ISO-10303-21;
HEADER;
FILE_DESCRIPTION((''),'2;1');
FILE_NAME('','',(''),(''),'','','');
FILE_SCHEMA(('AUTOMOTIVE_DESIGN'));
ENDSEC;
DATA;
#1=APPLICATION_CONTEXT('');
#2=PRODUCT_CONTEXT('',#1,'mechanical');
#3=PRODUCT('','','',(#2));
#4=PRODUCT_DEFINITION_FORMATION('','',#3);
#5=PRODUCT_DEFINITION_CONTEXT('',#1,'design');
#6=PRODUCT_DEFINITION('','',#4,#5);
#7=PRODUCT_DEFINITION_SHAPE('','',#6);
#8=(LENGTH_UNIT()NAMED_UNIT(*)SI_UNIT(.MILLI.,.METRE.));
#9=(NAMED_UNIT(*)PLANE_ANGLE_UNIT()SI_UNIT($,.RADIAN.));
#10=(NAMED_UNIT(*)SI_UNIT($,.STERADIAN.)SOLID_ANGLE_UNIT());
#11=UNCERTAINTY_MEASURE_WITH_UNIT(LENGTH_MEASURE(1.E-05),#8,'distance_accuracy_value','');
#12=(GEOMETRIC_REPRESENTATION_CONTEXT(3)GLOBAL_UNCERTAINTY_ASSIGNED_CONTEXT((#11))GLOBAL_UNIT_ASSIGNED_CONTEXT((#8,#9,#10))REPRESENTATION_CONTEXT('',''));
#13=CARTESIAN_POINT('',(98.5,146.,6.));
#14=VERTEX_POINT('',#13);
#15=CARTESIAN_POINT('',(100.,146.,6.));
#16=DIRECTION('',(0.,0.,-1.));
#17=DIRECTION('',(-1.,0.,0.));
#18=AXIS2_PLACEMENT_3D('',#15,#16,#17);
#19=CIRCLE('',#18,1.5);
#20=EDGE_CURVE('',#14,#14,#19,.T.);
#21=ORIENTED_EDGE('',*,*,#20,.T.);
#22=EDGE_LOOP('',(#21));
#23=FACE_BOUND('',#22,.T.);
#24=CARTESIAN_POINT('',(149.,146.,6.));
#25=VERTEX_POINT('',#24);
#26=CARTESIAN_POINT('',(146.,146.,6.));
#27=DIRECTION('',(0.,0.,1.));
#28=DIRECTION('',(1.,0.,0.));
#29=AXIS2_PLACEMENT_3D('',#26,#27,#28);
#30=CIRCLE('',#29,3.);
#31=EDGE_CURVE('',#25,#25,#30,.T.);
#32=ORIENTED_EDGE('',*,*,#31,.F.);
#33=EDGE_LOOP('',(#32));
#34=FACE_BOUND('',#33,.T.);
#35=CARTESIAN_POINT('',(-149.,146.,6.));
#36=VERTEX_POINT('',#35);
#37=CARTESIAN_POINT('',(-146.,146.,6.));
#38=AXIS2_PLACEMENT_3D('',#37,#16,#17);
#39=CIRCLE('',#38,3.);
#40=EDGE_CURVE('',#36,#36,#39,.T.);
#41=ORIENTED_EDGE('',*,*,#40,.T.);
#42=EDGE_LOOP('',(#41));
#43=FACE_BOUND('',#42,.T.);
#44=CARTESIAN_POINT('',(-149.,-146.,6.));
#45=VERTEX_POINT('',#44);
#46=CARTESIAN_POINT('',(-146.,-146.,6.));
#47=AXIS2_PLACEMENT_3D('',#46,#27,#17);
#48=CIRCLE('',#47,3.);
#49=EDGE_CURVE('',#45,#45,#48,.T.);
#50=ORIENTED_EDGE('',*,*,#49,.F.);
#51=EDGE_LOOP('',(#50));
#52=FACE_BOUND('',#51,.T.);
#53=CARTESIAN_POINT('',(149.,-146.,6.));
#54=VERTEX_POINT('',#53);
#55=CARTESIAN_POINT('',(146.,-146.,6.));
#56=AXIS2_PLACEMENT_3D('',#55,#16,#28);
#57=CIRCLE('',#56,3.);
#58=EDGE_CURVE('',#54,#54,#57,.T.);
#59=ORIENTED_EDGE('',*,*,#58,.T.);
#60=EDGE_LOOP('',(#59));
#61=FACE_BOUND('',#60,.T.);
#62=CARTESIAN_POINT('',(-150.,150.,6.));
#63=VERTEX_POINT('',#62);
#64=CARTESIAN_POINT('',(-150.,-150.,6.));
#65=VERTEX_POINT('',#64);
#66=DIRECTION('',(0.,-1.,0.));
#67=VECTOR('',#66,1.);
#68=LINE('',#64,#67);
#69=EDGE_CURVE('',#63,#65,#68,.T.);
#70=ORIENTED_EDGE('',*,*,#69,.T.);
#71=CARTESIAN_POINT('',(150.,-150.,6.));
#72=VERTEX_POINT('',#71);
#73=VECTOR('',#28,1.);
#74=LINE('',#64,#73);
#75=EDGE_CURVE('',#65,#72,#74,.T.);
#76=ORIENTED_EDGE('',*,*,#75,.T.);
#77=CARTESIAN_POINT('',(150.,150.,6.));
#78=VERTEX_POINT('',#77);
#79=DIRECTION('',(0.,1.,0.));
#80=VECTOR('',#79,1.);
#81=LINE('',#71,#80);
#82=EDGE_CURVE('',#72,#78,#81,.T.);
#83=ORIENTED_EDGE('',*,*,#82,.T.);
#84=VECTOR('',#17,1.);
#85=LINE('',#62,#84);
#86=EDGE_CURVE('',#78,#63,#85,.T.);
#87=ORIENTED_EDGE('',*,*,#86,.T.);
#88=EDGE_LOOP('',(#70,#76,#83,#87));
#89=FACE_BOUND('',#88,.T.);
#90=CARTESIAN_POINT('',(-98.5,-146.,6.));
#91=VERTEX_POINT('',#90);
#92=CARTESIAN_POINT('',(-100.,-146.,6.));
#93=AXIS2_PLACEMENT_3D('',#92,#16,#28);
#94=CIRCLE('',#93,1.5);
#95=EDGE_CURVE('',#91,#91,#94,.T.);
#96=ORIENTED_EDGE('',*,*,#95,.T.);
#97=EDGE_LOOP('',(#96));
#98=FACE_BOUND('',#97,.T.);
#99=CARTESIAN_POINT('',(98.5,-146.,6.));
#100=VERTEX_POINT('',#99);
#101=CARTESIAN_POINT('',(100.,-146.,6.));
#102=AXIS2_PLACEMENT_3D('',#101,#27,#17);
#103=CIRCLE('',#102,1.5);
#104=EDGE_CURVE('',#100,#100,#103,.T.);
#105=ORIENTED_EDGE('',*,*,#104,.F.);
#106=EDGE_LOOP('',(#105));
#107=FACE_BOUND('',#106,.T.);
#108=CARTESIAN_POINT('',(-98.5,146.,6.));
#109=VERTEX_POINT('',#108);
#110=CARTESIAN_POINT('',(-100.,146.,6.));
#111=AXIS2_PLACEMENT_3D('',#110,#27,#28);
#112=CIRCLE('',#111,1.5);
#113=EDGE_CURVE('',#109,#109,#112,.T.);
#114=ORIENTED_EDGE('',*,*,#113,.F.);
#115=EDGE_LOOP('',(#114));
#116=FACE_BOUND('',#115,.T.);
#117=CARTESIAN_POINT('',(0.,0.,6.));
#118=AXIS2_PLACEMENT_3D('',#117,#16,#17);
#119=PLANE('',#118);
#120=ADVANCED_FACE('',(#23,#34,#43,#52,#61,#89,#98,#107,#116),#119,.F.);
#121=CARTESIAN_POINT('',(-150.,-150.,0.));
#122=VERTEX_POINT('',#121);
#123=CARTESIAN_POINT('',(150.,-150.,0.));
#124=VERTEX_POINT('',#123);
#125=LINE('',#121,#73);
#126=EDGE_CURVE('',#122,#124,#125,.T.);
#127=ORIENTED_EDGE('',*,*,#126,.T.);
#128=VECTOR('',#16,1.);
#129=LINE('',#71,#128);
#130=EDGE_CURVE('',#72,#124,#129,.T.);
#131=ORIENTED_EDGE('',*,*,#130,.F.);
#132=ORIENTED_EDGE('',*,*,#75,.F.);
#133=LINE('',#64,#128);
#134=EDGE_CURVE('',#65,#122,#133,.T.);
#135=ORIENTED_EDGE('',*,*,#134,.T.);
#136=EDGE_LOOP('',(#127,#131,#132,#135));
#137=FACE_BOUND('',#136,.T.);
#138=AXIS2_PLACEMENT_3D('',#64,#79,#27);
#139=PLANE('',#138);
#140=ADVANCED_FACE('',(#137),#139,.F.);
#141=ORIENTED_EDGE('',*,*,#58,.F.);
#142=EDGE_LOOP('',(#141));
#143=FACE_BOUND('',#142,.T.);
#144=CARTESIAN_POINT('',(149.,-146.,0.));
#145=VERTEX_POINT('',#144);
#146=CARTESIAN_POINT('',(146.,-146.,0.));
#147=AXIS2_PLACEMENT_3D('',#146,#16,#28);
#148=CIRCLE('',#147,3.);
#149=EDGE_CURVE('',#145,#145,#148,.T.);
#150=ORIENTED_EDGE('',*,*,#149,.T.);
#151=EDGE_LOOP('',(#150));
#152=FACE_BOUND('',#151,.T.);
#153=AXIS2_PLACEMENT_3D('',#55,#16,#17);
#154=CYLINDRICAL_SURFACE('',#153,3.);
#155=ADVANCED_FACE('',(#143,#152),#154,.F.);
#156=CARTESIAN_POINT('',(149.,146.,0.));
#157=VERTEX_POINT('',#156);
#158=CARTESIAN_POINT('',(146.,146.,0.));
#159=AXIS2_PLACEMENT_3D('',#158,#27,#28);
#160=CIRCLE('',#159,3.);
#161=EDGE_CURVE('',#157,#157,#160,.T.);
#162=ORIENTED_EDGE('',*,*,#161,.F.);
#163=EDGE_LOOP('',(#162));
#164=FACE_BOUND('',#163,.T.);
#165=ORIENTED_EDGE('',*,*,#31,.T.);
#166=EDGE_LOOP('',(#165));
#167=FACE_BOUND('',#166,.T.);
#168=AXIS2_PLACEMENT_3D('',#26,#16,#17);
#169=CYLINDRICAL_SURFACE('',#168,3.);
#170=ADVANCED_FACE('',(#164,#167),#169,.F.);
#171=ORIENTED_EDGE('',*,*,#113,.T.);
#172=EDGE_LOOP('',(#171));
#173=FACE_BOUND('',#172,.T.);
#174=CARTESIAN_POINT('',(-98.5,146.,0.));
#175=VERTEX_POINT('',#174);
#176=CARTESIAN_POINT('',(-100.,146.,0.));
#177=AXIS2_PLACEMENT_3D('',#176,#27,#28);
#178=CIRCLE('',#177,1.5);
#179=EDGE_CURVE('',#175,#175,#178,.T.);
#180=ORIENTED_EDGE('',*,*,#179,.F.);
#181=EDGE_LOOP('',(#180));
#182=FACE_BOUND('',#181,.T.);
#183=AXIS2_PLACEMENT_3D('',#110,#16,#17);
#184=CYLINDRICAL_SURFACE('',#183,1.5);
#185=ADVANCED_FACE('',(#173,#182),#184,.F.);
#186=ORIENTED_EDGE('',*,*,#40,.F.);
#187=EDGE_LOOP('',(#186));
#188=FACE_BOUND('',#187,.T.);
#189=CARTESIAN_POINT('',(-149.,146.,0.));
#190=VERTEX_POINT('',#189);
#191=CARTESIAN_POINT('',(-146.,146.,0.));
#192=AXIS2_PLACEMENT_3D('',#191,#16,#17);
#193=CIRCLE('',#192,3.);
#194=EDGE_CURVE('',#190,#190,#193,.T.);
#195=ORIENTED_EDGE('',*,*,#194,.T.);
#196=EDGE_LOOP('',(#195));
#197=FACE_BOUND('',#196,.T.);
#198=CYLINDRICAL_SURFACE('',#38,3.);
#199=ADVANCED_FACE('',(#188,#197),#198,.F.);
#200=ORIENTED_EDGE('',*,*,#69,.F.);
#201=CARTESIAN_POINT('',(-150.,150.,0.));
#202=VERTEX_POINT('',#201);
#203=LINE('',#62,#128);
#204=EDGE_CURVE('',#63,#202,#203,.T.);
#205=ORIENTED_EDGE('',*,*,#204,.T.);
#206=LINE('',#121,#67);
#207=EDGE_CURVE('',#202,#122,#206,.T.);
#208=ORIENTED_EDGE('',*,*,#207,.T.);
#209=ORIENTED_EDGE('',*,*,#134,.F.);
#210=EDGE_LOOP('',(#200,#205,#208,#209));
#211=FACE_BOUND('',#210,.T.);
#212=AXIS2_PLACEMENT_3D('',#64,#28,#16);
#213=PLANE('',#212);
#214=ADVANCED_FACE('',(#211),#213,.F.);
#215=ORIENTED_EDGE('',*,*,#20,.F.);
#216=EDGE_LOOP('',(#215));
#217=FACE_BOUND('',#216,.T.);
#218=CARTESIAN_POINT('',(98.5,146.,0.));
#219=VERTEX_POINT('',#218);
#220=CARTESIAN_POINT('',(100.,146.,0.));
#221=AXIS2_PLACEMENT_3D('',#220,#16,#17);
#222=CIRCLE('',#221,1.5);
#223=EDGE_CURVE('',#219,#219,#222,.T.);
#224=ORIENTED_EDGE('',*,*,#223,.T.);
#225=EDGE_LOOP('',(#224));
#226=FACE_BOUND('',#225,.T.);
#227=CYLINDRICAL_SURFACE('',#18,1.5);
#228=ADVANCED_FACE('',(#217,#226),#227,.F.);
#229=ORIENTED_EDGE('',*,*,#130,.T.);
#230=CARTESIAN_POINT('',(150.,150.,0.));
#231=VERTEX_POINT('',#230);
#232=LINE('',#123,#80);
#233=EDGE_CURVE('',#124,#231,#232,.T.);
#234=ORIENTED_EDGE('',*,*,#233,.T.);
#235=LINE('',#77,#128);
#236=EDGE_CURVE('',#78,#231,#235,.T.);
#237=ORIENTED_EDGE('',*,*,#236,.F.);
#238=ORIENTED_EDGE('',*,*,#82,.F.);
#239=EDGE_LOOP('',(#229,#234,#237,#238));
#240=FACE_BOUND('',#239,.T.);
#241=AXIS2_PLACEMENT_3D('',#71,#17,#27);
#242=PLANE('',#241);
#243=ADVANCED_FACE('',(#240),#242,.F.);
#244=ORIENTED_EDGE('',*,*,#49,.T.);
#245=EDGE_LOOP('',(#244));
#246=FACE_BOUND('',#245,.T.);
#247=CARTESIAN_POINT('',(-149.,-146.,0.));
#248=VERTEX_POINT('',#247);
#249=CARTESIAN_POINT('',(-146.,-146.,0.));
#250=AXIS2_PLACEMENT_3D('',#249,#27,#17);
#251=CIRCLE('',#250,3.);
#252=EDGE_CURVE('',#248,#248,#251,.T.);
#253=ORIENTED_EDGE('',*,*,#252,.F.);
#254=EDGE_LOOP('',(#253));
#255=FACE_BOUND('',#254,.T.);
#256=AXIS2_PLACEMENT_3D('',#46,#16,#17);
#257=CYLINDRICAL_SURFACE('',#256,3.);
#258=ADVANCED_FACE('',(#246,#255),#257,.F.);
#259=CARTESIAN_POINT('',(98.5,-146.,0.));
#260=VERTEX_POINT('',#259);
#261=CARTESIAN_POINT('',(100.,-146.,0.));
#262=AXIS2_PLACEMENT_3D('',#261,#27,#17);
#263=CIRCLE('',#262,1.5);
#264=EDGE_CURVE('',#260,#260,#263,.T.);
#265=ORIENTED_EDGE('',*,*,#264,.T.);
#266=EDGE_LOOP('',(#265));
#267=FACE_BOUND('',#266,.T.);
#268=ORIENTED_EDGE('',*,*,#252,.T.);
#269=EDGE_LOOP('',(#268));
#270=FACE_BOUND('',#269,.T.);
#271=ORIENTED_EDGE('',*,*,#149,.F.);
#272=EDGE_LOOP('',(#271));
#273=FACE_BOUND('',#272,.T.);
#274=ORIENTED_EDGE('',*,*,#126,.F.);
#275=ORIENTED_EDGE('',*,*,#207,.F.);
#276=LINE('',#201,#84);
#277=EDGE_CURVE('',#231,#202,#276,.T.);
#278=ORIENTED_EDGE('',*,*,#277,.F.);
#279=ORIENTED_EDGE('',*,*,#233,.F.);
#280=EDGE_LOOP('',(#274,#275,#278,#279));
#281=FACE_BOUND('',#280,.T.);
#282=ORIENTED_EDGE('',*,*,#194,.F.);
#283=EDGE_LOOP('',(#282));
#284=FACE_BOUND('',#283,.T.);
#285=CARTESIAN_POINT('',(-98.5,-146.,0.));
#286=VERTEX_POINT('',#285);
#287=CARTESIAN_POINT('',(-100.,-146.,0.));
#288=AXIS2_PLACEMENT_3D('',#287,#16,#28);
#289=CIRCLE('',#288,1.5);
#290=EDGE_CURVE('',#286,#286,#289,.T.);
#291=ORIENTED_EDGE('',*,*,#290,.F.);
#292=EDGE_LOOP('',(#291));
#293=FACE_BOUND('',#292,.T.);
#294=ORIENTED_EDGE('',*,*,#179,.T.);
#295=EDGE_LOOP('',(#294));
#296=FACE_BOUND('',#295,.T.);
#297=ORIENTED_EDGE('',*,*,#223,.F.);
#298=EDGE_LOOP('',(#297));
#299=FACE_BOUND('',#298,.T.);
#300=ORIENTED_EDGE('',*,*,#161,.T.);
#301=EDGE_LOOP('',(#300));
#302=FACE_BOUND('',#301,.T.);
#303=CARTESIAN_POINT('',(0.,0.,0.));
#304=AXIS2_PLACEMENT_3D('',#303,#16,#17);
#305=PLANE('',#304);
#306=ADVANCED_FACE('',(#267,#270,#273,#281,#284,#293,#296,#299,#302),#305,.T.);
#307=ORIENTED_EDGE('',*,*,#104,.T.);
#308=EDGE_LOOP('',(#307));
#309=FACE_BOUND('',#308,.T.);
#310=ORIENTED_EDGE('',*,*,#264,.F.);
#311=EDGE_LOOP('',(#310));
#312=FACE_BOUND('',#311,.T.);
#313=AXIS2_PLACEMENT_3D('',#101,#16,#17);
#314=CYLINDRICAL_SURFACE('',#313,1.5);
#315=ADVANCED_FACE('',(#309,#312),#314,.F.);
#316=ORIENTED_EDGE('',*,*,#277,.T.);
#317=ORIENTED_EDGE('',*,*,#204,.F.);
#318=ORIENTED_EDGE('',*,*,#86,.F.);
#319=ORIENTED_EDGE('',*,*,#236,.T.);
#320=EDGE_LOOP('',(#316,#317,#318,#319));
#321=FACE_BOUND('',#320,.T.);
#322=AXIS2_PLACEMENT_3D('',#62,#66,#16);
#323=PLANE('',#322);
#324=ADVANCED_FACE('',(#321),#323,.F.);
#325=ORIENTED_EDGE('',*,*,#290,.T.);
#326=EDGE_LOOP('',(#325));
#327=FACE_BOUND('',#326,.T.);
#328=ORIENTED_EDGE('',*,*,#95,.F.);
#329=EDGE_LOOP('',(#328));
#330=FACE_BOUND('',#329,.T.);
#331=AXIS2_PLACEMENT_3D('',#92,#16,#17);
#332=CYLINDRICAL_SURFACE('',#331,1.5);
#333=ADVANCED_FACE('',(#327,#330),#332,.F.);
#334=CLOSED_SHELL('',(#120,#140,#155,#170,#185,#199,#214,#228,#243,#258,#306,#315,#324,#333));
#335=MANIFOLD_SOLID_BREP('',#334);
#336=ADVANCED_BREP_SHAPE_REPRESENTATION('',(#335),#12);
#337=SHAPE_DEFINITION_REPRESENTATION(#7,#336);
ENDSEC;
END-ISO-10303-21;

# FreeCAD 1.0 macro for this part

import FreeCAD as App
import Part
import Sketcher

V = App.Vector

doc = App.newDocument("Part")
body = doc.addObject("PartDesign::Body", "Body")

sketch1 = doc.addObject("Sketcher::SketchObject", "Sketch")
body.addObject(sketch1)
sketch1.AttachmentSupport = (doc.XY_Plane, [""])
sketch1.MapMode = "FlatFace"
sketch1.addGeometry([
    Part.LineSegment(V(-150, 150, 0), V(-150, -150, 0)),
    Part.LineSegment(V(-150, -150, 0), V(150, -150, 0)),
    Part.LineSegment(V(150, -150, 0), V(150, 150, 0)),
    Part.LineSegment(V(150, 150, 0), V(-150, 150, 0)),
], False)
sketch1.addConstraint([
    Sketcher.Constraint("Coincident", 0, 2, 1, 1),
    Sketcher.Constraint("Coincident", 1, 2, 2, 1),
    Sketcher.Constraint("Coincident", 2, 2, 3, 1),
    Sketcher.Constraint("Coincident", 3, 2, 0, 1),
    Sketcher.Constraint("Vertical", 0),
    Sketcher.Constraint("Horizontal", 1),
    Sketcher.Constraint("Vertical", 2),
    Sketcher.Constraint("Horizontal", 3),
    Sketcher.Constraint("Symmetric", 0, 2, 2, 2, -1, 1),
    Sketcher.Constraint("Equal", 3, 0),
    Sketcher.Constraint("DistanceX", 1, 1, 1, 2, 300.0),
])
pad1 = doc.addObject("PartDesign::Pad", "Pad")
body.addObject(pad1)
pad1.Profile = sketch1
pad1.Length = 6

sketch2 = doc.addObject("Sketcher::SketchObject", "Sketch001")
body.addObject(sketch2)
sketch2.AttachmentSupport = (doc.XY_Plane, [""])
sketch2.MapMode = "FlatFace"
sketch2.addGeometry(Part.Circle(V(-146, 146, 0), V(0, 0, 1), 3), False)
sketch2.addConstraint([
    Sketcher.Constraint("Diameter", 0, 6.0),
    Sketcher.Constraint("DistanceX", 0, 3, -1, 1, 146.0),
    Sketcher.Constraint("DistanceY", -1, 1, 0, 3, 146.0),
])
pocket1 = doc.addObject("PartDesign::Pocket", "Pocket")
body.addObject(pocket1)
pocket1.Profile = sketch2
pocket1.Type = "ThroughAll"
pocket1.Reversed = True

sketch3 = doc.addObject("Sketcher::SketchObject", "Sketch002")
body.addObject(sketch3)
sketch3.AttachmentSupport = (doc.XY_Plane, [""])
sketch3.MapMode = "FlatFace"
sketch3.addGeometry(Part.Circle(V(-100, 146, 0), V(0, 0, 1), 1.5), False)
sketch3.addConstraint([
    Sketcher.Constraint("Diameter", 0, 3.0),
    Sketcher.Constraint("DistanceX", 0, 3, -1, 1, 100.0),
    Sketcher.Constraint("DistanceY", -1, 1, 0, 3, 146.0),
])
pocket2 = doc.addObject("PartDesign::Pocket", "Pocket001")
body.addObject(pocket2)
pocket2.Profile = sketch3
pocket2.Type = "ThroughAll"
pocket2.Reversed = True
doc.recompute()

mirrored = doc.addObject("PartDesign::Mirrored", "Mirrored")
body.addObject(mirrored)
mirrored.Originals = [pocket1, pocket2]
mirrored.MirrorPlane = (doc.YZ_Plane, [""])
body.Tip = mirrored
doc.recompute()

mirrored2 = doc.addObject("PartDesign::Mirrored", "Mirrored001")
body.addObject(mirrored2)
mirrored2.Originals = [pocket1, pocket2]
mirrored2.MirrorPlane = (doc.XZ_Plane, [""])
body.Tip = mirrored2

sketch4 = doc.addObject("Sketcher::SketchObject", "Sketch003")
body.addObject(sketch4)
sketch4.AttachmentSupport = (doc.XY_Plane, [""])
sketch4.MapMode = "FlatFace"
sketch4.addGeometry(Part.Circle(V(146, -146, 0), V(0, 0, 1), 3), False)
sketch4.addConstraint([
    Sketcher.Constraint("Diameter", 0, 6.0),
    Sketcher.Constraint("DistanceX", -1, 1, 0, 3, 146.0),
    Sketcher.Constraint("DistanceY", 0, 3, -1, 1, 146.0),
])
pocket3 = doc.addObject("PartDesign::Pocket", "Pocket002")
body.addObject(pocket3)
pocket3.Profile = sketch4
pocket3.Type = "ThroughAll"
pocket3.Reversed = True

sketch5 = doc.addObject("Sketcher::SketchObject", "Sketch004")
body.addObject(sketch5)
sketch5.AttachmentSupport = (doc.XY_Plane, [""])
sketch5.MapMode = "FlatFace"
sketch5.addGeometry(Part.Circle(V(100, -146, 0), V(0, 0, 1), 1.5), False)
sketch5.addConstraint([
    Sketcher.Constraint("Diameter", 0, 3.0),
    Sketcher.Constraint("DistanceX", -1, 1, 0, 3, 100.0),
    Sketcher.Constraint("DistanceY", 0, 3, -1, 1, 146.0),
])
pocket4 = doc.addObject("PartDesign::Pocket", "Pocket003")
body.addObject(pocket4)
pocket4.Profile = sketch5
pocket4.Type = "ThroughAll"
pocket4.Reversed = True

doc.recompute()
